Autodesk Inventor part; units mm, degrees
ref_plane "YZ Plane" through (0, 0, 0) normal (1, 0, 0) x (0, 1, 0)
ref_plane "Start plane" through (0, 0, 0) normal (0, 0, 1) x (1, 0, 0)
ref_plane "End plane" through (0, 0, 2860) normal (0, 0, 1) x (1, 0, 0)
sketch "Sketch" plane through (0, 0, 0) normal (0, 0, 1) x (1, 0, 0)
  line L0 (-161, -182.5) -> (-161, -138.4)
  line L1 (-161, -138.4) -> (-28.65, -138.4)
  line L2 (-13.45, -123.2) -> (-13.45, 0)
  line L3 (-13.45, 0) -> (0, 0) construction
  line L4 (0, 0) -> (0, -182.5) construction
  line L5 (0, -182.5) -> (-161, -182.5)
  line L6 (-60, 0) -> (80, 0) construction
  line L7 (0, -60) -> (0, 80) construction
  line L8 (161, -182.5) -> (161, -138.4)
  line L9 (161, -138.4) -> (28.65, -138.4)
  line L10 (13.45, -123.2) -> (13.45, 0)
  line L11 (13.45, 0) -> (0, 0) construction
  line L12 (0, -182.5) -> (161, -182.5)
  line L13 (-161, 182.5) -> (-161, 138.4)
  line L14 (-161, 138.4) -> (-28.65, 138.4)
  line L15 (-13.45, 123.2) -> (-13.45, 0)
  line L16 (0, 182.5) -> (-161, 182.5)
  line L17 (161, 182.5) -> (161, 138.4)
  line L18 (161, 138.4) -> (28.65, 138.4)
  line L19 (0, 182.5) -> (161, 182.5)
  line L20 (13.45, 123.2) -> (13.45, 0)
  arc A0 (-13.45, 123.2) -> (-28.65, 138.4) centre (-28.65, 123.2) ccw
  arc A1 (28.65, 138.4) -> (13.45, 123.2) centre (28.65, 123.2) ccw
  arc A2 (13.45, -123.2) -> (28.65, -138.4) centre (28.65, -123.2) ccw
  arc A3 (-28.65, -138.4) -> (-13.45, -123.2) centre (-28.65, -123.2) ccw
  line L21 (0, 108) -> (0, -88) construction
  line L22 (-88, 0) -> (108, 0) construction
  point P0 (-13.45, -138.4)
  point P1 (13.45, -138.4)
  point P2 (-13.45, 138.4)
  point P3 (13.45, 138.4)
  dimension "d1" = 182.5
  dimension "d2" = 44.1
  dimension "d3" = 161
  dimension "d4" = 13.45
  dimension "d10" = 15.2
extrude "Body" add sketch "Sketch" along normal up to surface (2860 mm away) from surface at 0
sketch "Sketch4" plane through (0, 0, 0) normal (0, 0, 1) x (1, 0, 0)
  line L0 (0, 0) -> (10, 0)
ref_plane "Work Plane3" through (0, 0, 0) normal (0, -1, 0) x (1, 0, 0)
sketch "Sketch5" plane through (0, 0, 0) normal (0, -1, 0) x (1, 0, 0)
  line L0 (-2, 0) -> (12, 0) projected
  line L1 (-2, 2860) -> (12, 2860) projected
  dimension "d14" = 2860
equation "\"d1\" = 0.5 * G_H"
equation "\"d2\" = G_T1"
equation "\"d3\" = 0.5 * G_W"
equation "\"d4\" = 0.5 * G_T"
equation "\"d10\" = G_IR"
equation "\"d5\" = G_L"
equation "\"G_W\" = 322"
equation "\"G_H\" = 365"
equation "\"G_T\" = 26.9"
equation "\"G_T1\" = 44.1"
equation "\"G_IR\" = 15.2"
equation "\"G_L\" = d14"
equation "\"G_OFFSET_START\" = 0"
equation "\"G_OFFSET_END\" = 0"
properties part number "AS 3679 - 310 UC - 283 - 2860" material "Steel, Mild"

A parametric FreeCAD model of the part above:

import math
import FreeCAD as App
import Part
import Sketcher
from FreeCAD import Vector

doc = App.newDocument("Part")
body = doc.addObject("PartDesign::Body", "Body")

sketch1 = doc.addObject("Sketcher::SketchObject", "Sketch")
body.addObject(sketch1)
sketch1.AttachmentSupport = (doc.XY_Plane, [""])
sketch1.MapMode = "FlatFace"
sketch1.addGeometry([
    Part.LineSegment(Vector(-161, -138.4, 0), Vector(-161, -182.5, 0)),
    Part.LineSegment(Vector(-161, -182.5, 0), Vector(161, -182.5, 0)),
    Part.LineSegment(Vector(161, -182.5, 0), Vector(161, -138.4, 0)),
    Part.LineSegment(Vector(161, -138.4, 0), Vector(28.65, -138.4, 0)),
    Part.ArcOfCircle(Part.Circle(Vector(28.65, -123.2, 0), Vector(0, 0, 1), 15.2), math.radians(180), math.radians(270)),
    Part.LineSegment(Vector(13.45, -123.2, 0), Vector(13.45, 123.2, 0)),
    Part.ArcOfCircle(Part.Circle(Vector(28.65, 123.2, 0), Vector(0, 0, 1), 15.2), math.radians(90), math.radians(180)),
    Part.LineSegment(Vector(28.65, 138.4, 0), Vector(161, 138.4, 0)),
    Part.LineSegment(Vector(161, 138.4, 0), Vector(161, 182.5, 0)),
    Part.LineSegment(Vector(161, 182.5, 0), Vector(-161, 182.5, 0)),
    Part.LineSegment(Vector(-161, 182.5, 0), Vector(-161, 138.4, 0)),
    Part.LineSegment(Vector(-161, 138.4, 0), Vector(-28.65, 138.4, 0)),
    Part.ArcOfCircle(Part.Circle(Vector(-28.65, 123.2, 0), Vector(0, 0, 1), 15.2), math.radians(0), math.radians(90)),
    Part.LineSegment(Vector(-13.45, 123.2, 0), Vector(-13.45, -123.2, 0)),
    Part.ArcOfCircle(Part.Circle(Vector(-28.65, -123.2, 0), Vector(0, 0, 1), 15.2), math.radians(-90), math.radians(0)),
    Part.LineSegment(Vector(-28.65, -138.4, 0), Vector(-161, -138.4, 0)),
], False)
sketch1.addConstraint([
    Sketcher.Constraint("Coincident", 0, 2, 1, 1),
    Sketcher.Constraint("Coincident", 1, 2, 2, 1),
    Sketcher.Constraint("Coincident", 2, 2, 3, 1),
    Sketcher.Constraint("Tangent", 3, 2, 4, 2),
    Sketcher.Constraint("Tangent", 4, 1, 5, 1),
    Sketcher.Constraint("Tangent", 5, 2, 6, 2),
    Sketcher.Constraint("Tangent", 6, 1, 7, 1),
    Sketcher.Constraint("Coincident", 7, 2, 8, 1),
    Sketcher.Constraint("Coincident", 8, 2, 9, 1),
    Sketcher.Constraint("Coincident", 9, 2, 10, 1),
    Sketcher.Constraint("Coincident", 10, 2, 11, 1),
    Sketcher.Constraint("Tangent", 11, 2, 12, 2),
    Sketcher.Constraint("Tangent", 12, 1, 13, 1),
    Sketcher.Constraint("Tangent", 13, 2, 14, 2),
    Sketcher.Constraint("Tangent", 14, 1, 15, 1),
    Sketcher.Constraint("Coincident", 15, 2, 0, 1),
    Sketcher.Constraint("Vertical", 0),
    Sketcher.Constraint("Horizontal", 1),
    Sketcher.Constraint("Vertical", 2),
    Sketcher.Constraint("Horizontal", 3),
    Sketcher.Constraint("Vertical", 5),
    Sketcher.Constraint("Horizontal", 7),
    Sketcher.Constraint("Vertical", 8),
    Sketcher.Constraint("Horizontal", 9),
    Sketcher.Constraint("Vertical", 10),
    Sketcher.Constraint("Horizontal", 11),
    Sketcher.Constraint("Vertical", 13),
    Sketcher.Constraint("Horizontal", 15),
    Sketcher.Constraint("Equal", 4, 6),
    Sketcher.Constraint("Equal", 6, 12),
    Sketcher.Constraint("Equal", 12, 14),
    Sketcher.Constraint("Symmetric", 4, 3, 12, 3, -1, 1),
    Sketcher.Constraint("Symmetric", 0, 2, 8, 2, -1, 1),
    Sketcher.Constraint("Symmetric", 7, 2, 10, 2, -2),
    Sketcher.Constraint("Symmetric", 2, 2, 15, 2, -2),
    Sketcher.Constraint("Radius", 4, 15.2),
    Sketcher.Constraint("DistanceY", 0, 2, 0, 1, 44.1),
    Sketcher.Constraint("DistanceX", 0, 2, -1, 1, 161.0),
    Sketcher.Constraint("DistanceY", 0, 2, -1, 1, 182.5),
    Sketcher.Constraint("DistanceX", -1, 1, 4, 1, 13.45),
])
pad1 = doc.addObject("PartDesign::Pad", "Pad")
body.addObject(pad1)
pad1.Profile = sketch1
pad1.Length = 2860

doc.recompute()
